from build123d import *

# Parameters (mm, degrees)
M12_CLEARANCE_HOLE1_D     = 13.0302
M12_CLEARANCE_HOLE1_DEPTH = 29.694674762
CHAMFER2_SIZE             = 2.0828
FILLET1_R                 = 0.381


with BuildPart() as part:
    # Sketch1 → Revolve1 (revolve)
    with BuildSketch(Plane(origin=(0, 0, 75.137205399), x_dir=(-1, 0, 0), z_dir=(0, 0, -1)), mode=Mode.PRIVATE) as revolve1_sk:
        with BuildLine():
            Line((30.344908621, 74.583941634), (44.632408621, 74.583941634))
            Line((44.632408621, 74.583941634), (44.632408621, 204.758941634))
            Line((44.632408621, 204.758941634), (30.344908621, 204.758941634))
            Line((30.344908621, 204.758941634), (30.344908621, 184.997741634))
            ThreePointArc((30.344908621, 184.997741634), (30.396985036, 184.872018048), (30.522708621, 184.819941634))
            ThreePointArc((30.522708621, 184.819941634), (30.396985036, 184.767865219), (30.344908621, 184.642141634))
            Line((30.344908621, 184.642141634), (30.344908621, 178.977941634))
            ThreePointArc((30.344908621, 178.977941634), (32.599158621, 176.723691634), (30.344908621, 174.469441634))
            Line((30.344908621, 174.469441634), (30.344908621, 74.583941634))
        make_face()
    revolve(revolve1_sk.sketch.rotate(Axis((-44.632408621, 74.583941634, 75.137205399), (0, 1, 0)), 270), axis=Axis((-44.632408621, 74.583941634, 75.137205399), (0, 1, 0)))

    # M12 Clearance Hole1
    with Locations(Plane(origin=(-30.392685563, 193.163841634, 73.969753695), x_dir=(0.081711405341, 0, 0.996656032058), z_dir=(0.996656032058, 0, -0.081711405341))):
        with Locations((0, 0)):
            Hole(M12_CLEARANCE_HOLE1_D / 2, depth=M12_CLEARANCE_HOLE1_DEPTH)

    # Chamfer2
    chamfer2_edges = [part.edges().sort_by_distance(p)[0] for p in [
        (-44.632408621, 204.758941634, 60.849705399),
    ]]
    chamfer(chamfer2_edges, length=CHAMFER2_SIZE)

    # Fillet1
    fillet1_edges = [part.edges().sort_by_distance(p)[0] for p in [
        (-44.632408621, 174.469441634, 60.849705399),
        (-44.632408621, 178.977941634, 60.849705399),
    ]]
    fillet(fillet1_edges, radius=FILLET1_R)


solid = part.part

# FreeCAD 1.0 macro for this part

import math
import FreeCAD as App
import Part
import Sketcher
Q = App.Units.Quantity


def edges_at(feature, points):
    """Names of the edges that pass closest to the given points."""
    edges = feature.Shape.Edges
    near = lambda p: min(range(len(edges)), key=lambda i: edges[i].distToShape(Part.Vertex(*p))[0])
    return sorted({f"Edge{near(p) + 1}" for p in points})

doc = App.newDocument("Part")
body = doc.addObject("PartDesign::Body", "Body")

# Sketch on XY plane
sketch1 = doc.addObject("Sketcher::SketchObject", "Sketch")
body.addObject(sketch1)
sketch1.AttachmentSupport = (doc.XY_Plane, [""])
sketch1.MapMode = "FlatFace"
sketch1.AttachmentOffset = App.Placement(App.Vector(0, 0, 75.137205), App.Rotation())
sketch1.addGeometry(Part.LineSegment(App.Vector(-30.34, 74.58, 0), App.Vector(-44.63, 74.58, 0)), False)
sketch1.addGeometry(Part.LineSegment(App.Vector(-44.63, 74.58, 0), App.Vector(-44.63, 204.76, 0)), False)
sketch1.addGeometry(Part.LineSegment(App.Vector(-44.63, 204.76, 0), App.Vector(-30.34, 204.76, 0)), False)
sketch1.addGeometry(Part.LineSegment(App.Vector(-30.34, 204.76, 0), App.Vector(-30.34, 185, 0)), False)
sketch1.addGeometry(Part.ArcOfCircle(Part.Circle(App.Vector(-30.52, 185, 0), App.Vector(0, 0, 1), 0.18), math.radians(-90), math.radians(0)), False)
sketch1.addGeometry(Part.ArcOfCircle(Part.Circle(App.Vector(-30.52, 184.64, 0), App.Vector(0, 0, 1), 0.18), math.radians(0), math.radians(90)), False)
sketch1.addGeometry(Part.LineSegment(App.Vector(-30.34, 184.64, 0), App.Vector(-30.34, 178.98, 0)), False)
sketch1.addGeometry(Part.ArcOfCircle(Part.Circle(App.Vector(-30.34, 176.72, 0), App.Vector(0, 0, 1), 2.25), math.radians(90), math.radians(270)), False)
sketch1.addGeometry(Part.LineSegment(App.Vector(-30.34, 174.47, 0), App.Vector(-30.34, 74.58, 0)), False)
sketch1.addGeometry(Part.LineSegment(App.Vector(-44.63, 74.58, 0), App.Vector(-44.63, 204.76, 0)), True)  # axis
sketch1.addConstraint(Sketcher.Constraint("Coincident", 0, 2, 1, 1))
sketch1.addConstraint(Sketcher.Constraint("Coincident", 1, 2, 2, 1))
sketch1.addConstraint(Sketcher.Constraint("Coincident", 2, 2, 3, 1))
sketch1.addConstraint(Sketcher.Constraint("Tangent", 3, 2, 4, 2))
sketch1.addConstraint(Sketcher.Constraint("Tangent", 4, 1, 5, 2))
sketch1.addConstraint(Sketcher.Constraint("Tangent", 5, 1, 6, 1))
sketch1.addConstraint(Sketcher.Constraint("Coincident", 6, 2, 7, 1))
sketch1.addConstraint(Sketcher.Constraint("Coincident", 7, 2, 8, 1))
sketch1.addConstraint(Sketcher.Constraint("Coincident", 8, 2, 0, 1))
sketch1.addConstraint(Sketcher.Constraint("Horizontal", 0))
sketch1.addConstraint(Sketcher.Constraint("Vertical", 1))
sketch1.addConstraint(Sketcher.Constraint("Horizontal", 2))
sketch1.addConstraint(Sketcher.Constraint("Vertical", 3))
sketch1.addConstraint(Sketcher.Constraint("Vertical", 6))
sketch1.addConstraint(Sketcher.Constraint("Vertical", 8))
sketch1.addConstraint(Sketcher.Constraint("Vertical", 9))
sketch1.addConstraint(Sketcher.Constraint("Coincident", 9, 1, 0, 2))
sketch1.addConstraint(Sketcher.Constraint("Equal", 4, 5))
sketch1.addConstraint(Sketcher.Constraint("Horizontal", 2, 2, 9, 2))
sketch1.addConstraint(Sketcher.Constraint("Vertical", 4, 3, 5, 3))
sketch1.addConstraint(Sketcher.Constraint("Vertical", 7, 3, 2, 2))
sketch1.addConstraint(Sketcher.Constraint("Vertical", 6, 2, 7, 2))
sketch1.addConstraint(Sketcher.Constraint("Radius", 4, Q("0.007 in")))
sketch1.addConstraint(Sketcher.Constraint("DistanceX", 0, 2, 0, 1, Q("0.5625 in")))
sketch1.addConstraint(Sketcher.Constraint("DistanceY", 1, 1, 1, 2, Q("5.125 in")))
sketch1.addConstraint(Sketcher.Constraint("DistanceY", 3, 2, 3, 1, Q("0.778 in")))
sketch1.addConstraint(Sketcher.Constraint("DistanceY", 6, 2, 6, 1, Q("0.223 in")))
sketch1.addConstraint(Sketcher.Constraint("DistanceY", 8, 2, 8, 1, Q("3.9325 in")))
sketch1.addConstraint(Sketcher.Constraint("DistanceX", 4, 3, -1, 1, 30.522709))
sketch1.addConstraint(Sketcher.Constraint("DistanceY", -1, 1, 4, 3, 184.997742))
revolution = doc.addObject("PartDesign::Revolution", "Revolution")
body.addObject(revolution)
revolution.Profile = sketch1
revolution.ReferenceAxis = (sketch1, ["Axis0"])
revolution.Angle = 360

# Sketch on an angled plane
sketch2 = doc.addObject("Sketcher::SketchObject", "Sketch001")
body.addObject(sketch2)
sketch2.Placement = App.Placement(App.Vector(-36.213722, 0, 2.969002), App.Rotation(App.Vector(0.081711405, 0, 0.996656032), App.Vector(0, -1, 0), App.Vector(0.996656032, 0, -0.081711405), "ZXY"))
sketch2.addGeometry(Part.Circle(App.Vector(71, -193, 0), App.Vector(0, 0, 1), 7), False)
sketch2.addConstraint(Sketcher.Constraint("Diameter", 0, Q("0.513 in")))
sketch2.addConstraint(Sketcher.Constraint("DistanceY", 0, 3, -1, 1, 193.163842))
sketch2.addConstraint(Sketcher.Constraint("DistanceX", -1, 1, 0, 3, 71.238972))
doc.recompute()
hole = doc.addObject("PartDesign::Hole", "Hole")
body.addObject(hole)
hole.Profile = sketch2
hole.ThreadType = "None"
hole.Diameter = Q("0.513 in")
hole.DepthType = "Dimension"
hole.Depth = 29.694675
hole.DrillPoint = "Flat"
doc.recompute()

chamfer = doc.addObject("PartDesign::Chamfer", "Chamfer")
body.addObject(chamfer)
chamfer.Base = (hole, edges_at(hole, [(-44.632, 204.759, 60.85)]))
chamfer.Size = Q("0.082 in")
doc.recompute()

fillet = doc.addObject("PartDesign::Fillet", "Fillet")
body.addObject(fillet)
fillet.Base = (chamfer, edges_at(chamfer, [(-44.632, 174.469, 60.85), (-44.632, 178.978, 60.85)]))
fillet.Radius = Q("0.015 in")

doc.recompute()
